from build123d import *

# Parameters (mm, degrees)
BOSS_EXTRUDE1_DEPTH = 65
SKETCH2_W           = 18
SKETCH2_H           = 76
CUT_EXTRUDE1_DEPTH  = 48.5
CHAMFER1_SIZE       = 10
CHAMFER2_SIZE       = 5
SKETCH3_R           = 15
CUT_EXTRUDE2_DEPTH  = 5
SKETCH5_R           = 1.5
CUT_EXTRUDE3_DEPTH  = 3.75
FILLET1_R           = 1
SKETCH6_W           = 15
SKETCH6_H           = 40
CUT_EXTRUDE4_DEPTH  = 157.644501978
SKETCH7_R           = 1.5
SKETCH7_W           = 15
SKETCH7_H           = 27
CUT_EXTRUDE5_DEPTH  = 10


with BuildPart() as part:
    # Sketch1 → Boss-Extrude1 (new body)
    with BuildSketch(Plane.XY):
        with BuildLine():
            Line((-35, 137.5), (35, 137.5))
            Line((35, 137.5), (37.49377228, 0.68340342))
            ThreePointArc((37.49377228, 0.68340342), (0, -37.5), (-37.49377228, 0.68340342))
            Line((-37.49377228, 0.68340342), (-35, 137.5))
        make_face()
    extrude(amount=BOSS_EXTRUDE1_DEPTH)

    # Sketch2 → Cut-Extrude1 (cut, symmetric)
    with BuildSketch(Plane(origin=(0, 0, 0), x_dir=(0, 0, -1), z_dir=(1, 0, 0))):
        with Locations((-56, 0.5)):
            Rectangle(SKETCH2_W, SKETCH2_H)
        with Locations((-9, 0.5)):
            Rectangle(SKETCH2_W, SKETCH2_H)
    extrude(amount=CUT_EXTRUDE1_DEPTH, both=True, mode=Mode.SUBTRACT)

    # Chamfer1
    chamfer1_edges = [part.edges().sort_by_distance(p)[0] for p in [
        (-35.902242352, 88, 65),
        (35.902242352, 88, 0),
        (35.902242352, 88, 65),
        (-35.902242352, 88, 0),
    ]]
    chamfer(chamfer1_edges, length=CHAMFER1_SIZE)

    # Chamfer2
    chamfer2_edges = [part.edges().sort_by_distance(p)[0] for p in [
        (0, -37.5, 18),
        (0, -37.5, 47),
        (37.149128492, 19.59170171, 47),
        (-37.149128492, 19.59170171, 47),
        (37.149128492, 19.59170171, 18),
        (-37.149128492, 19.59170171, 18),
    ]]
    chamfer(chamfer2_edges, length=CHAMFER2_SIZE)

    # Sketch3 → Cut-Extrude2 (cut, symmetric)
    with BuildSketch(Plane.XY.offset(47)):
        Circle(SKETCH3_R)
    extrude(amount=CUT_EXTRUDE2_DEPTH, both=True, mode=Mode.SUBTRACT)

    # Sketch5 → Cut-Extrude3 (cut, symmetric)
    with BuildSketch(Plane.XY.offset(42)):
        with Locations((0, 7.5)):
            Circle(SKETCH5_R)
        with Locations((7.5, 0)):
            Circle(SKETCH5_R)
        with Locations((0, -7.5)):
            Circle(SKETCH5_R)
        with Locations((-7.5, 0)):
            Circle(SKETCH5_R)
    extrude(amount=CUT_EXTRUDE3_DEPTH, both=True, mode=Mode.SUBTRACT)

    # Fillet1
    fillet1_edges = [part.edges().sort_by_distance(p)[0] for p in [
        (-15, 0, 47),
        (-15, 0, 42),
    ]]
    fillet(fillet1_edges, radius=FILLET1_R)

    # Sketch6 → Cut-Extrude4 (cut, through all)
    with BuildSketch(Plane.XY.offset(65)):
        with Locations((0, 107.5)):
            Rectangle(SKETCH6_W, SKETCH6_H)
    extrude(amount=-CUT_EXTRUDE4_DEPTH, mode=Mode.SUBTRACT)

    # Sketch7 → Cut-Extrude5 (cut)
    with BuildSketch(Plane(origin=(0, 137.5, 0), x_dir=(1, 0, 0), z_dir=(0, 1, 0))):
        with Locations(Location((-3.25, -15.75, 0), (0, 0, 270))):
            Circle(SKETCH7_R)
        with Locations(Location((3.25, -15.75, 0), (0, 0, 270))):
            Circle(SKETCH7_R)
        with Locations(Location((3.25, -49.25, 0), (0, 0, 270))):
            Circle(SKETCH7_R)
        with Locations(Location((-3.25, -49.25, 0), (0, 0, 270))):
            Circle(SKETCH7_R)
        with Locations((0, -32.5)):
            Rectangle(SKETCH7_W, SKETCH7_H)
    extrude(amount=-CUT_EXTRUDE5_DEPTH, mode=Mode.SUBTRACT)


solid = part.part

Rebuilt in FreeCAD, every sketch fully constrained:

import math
import FreeCAD as App
import Part
import Sketcher


def edges_at(feature, points):
    """Names of the edges that pass closest to the given points."""
    edges = feature.Shape.Edges
    near = lambda p: min(range(len(edges)), key=lambda i: edges[i].distToShape(Part.Vertex(*p))[0])
    return sorted({f"Edge{near(p) + 1}" for p in points})


def add_polygon(sketch, points):
    """Adds a closed chain of lines whose ends are joined by coincident constraints."""
    first, n = sketch.GeometryCount, len(points)
    for a, b in zip(points, points[1:] + points[:1]):
        sketch.addGeometry(Part.LineSegment(App.Vector(*a, 0), App.Vector(*b, 0)), False)
    for i in range(n):
        sketch.addConstraint(Sketcher.Constraint("Coincident", first + i, 2, first + (i + 1) % n, 1))

doc = App.newDocument("Part")
params = doc.addObject("Spreadsheet::Sheet", "Params")
for row, (alias, value) in enumerate([
    ("sketch1_radius", "37.5 mm"),
    ("sketch1_width", "70 mm"),
    ("pad1_length", "65 mm"),
    ("sketch2_width", "76 mm"),
    ("sketch2_height", "18 mm"),
    ("pocket1_length", "97 mm"),
    ("chamfer_size", "10 mm"),
    ("chamfer2_size", "5 mm"),
    ("sketch3_diameter", "30 mm"),
    ("pocket2_length", "10 mm"),
    ("sketch4_diameter", "3 mm"),
    ("pocket3_length", "7.5 mm"),
    ("fillet_radius", "1 mm"),
    ("sketch5_width", "15 mm"),
    ("sketch5_height", "40 mm"),
    ("sketch6_diameter", "3 mm"),
    ("sketch6_width", "15 mm"),
    ("sketch6_height", "27 mm"),
    ("pocket5_length", "10 mm"),
], start=1):
    params.set(f"A{row}", alias)
    params.set(f"B{row}", "=" + value)
    params.setAlias(f"B{row}", alias)

body = doc.addObject("PartDesign::Body", "Body")

# Sketch on XY plane
sketch1 = body.newObject("Sketcher::SketchObject", "Sketch")
sketch1.AttachmentSupport = (doc.getObject("XY_Plane"), [""])
sketch1.MapMode = "FlatFace"
sketch1.addGeometry([
    Part.LineSegment(App.Vector(35, 138, 0), App.Vector(-35, 138, 0)),
    Part.LineSegment(App.Vector(-35, 138, 0), App.Vector(-37, 1, 0)),
    Part.ArcOfCircle(Part.Circle(App.Vector(0, 0, 0), App.Vector(0, 0, 1), 38), math.radians(179), math.radians(361)),
    Part.LineSegment(App.Vector(37, 1, 0), App.Vector(35, 138, 0)),
], False)
sketch1.addConstraint([
    Sketcher.Constraint("Coincident", 0, 2, 1, 1),
    Sketcher.Constraint("Tangent", 1, 2, 2, 1),
    Sketcher.Constraint("Tangent", 2, 2, 3, 1),
    Sketcher.Constraint("Coincident", 3, 2, 0, 1),
    Sketcher.Constraint("Horizontal", 0),
    Sketcher.Constraint("Coincident", 2, 3, -1, 1),
    Sketcher.Constraint("Horizontal", 1, 2, 2, 2),
    Sketcher.Constraint("Radius", 2, 37.5),
    Sketcher.Constraint("DistanceX", 0, 2, 0, 1, 70.0),
    Sketcher.Constraint("DistanceY", -1, 1, 0, 2, 137.5),
])
sketch1.setExpression("Constraints[7]", "Params.sketch1_radius")
sketch1.setExpression("Constraints[8]", "Params.sketch1_width")
pad1 = body.newObject("PartDesign::Pad", "Pad")
pad1.Profile = sketch1
pad1.setExpression("Length", "Params.pad1_length")

# Sketch on YZ plane
sketch2 = body.newObject("Sketcher::SketchObject", "Sketch001")
sketch2.AttachmentSupport = (doc.getObject("YZ_Plane"), [""])
sketch2.MapMode = "FlatFace"
add_polygon(sketch2, [(38, 65), (-38, 65), (-38, 47), (38, 47)])  # lines 0-3
add_polygon(sketch2, [(38, 18), (-38, 18), (-38, 0), (38, 0)])  # lines 4-7
sketch2.addConstraint([
    Sketcher.Constraint("Horizontal", 0),
    Sketcher.Constraint("Vertical", 1),
    Sketcher.Constraint("Horizontal", 2),
    Sketcher.Constraint("Vertical", 3),
    Sketcher.Constraint("Horizontal", 4),
    Sketcher.Constraint("Vertical", 5),
    Sketcher.Constraint("Horizontal", 6),
    Sketcher.Constraint("Vertical", 7),
    Sketcher.Constraint("PointOnObject", 5, 2, -1),
    Sketcher.Constraint("Vertical", 1, 2, 4, 2),
    Sketcher.Constraint("Vertical", 3, 2, 6, 2),
    Sketcher.Constraint("Equal", 3, 5),
    Sketcher.Constraint("DistanceX", 0, 2, 0, 1, 76.0),
    Sketcher.Constraint("DistanceY", 1, 2, 1, 1, 18.0),
    Sketcher.Constraint("DistanceY", -1, 1, 0, 2, 65.0),
    Sketcher.Constraint("DistanceX", 0, 2, -1, 1, 37.5),
])
sketch2.setExpression("Constraints[20]", "Params.sketch2_width")
sketch2.setExpression("Constraints[21]", "Params.sketch2_height")
pocket1 = body.newObject("PartDesign::Pocket", "Pocket")
pocket1.Profile = sketch2
pocket1.setExpression("Length", "Params.pocket1_length")
pocket1.Midplane = True
doc.recompute()

chamfer = body.newObject("PartDesign::Chamfer", "Chamfer")
chamfer.Base = (pocket1, edges_at(pocket1, [
    (-35.902, 88, 65),
    (35.902, 88, 0),
    (35.902, 88, 65),
    (-35.902, 88, 0),
]))
chamfer.setExpression("Size", "Params.chamfer_size")
doc.recompute()

chamfer2 = body.newObject("PartDesign::Chamfer", "Chamfer001")
chamfer2.Base = (chamfer, edges_at(chamfer, [
    (0, -37.5, 18),
    (0, -37.5, 47),
    (37.149, 19.592, 47),
    (-37.149, 19.592, 47),
    (37.149, 19.592, 18),
    (-37.149, 19.592, 18),
]))
chamfer2.setExpression("Size", "Params.chamfer2_size")

# Sketch on XY plane
sketch3 = body.newObject("Sketcher::SketchObject", "Sketch002")
sketch3.AttachmentSupport = (doc.getObject("XY_Plane"), [""])
sketch3.MapMode = "FlatFace"
sketch3.AttachmentOffset = App.Placement(App.Vector(0, 0, 47), App.Rotation())
sketch3.addGeometry(Part.Circle(App.Vector(0, 0, 0), App.Vector(0, 0, 1), 15), False)
sketch3.addConstraint([
    Sketcher.Constraint("Coincident", 0, 3, -1, 1),
    Sketcher.Constraint("Diameter", 0, 30.0),
])
sketch3.setExpression("Constraints[1]", "Params.sketch3_diameter")
pocket2 = body.newObject("PartDesign::Pocket", "Pocket001")
pocket2.Profile = sketch3
pocket2.setExpression("Length", "Params.pocket2_length")
pocket2.Midplane = True

# Sketch on XY plane
sketch4 = body.newObject("Sketcher::SketchObject", "Sketch003")
sketch4.AttachmentSupport = (doc.getObject("XY_Plane"), [""])
sketch4.MapMode = "FlatFace"
sketch4.AttachmentOffset = App.Placement(App.Vector(0, 0, 42), App.Rotation())
sketch4.addGeometry([
    Part.Circle(App.Vector(0, 7.5, 0), App.Vector(0, 0, 1), 1.5),
    Part.Circle(App.Vector(7.5, 0, 0), App.Vector(0, 0, 1), 1.5),
    Part.Circle(App.Vector(0, -7.5, 0), App.Vector(0, 0, 1), 1.5),
    Part.Circle(App.Vector(-7.5, 0, 0), App.Vector(0, 0, 1), 1.5),
], False)
sketch4.addConstraint([
    Sketcher.Constraint("Equal", 0, 1),
    Sketcher.Constraint("Equal", 1, 2),
    Sketcher.Constraint("Equal", 2, 3),
    Sketcher.Constraint("Symmetric", 0, 3, 2, 3, -1, 1),
    Sketcher.Constraint("Symmetric", 1, 3, 3, 3, -1, 1),
    Sketcher.Constraint("PointOnObject", 0, 3, -2),
    Sketcher.Constraint("PointOnObject", 1, 3, -1),
    Sketcher.Constraint("Diameter", 0, 3.0),
    Sketcher.Constraint("DistanceY", 2, 3, 0, 3, 15.0),
    Sketcher.Constraint("DistanceX", 3, 3, 1, 3, 15.0),
])
sketch4.setExpression("Constraints[7]", "Params.sketch4_diameter")
pocket3 = body.newObject("PartDesign::Pocket", "Pocket002")
pocket3.Profile = sketch4
pocket3.setExpression("Length", "Params.pocket3_length")
pocket3.Midplane = True
doc.recompute()

fillet = body.newObject("PartDesign::Fillet", "Fillet")
fillet.Base = (pocket3, edges_at(pocket3, [(-15, 0, 47), (-15, 0, 42)]))
fillet.setExpression("Radius", "Params.fillet_radius")

# Sketch on XY plane
sketch5 = body.newObject("Sketcher::SketchObject", "Sketch004")
sketch5.AttachmentSupport = (doc.getObject("XY_Plane"), [""])
sketch5.MapMode = "FlatFace"
sketch5.AttachmentOffset = App.Placement(App.Vector(0, 0, 65), App.Rotation())
add_polygon(sketch5, [(-8, 128), (-8, 88), (8, 88), (8, 128)])  # lines 0-3
sketch5.addConstraint([
    Sketcher.Constraint("Vertical", 0),
    Sketcher.Constraint("Horizontal", 1),
    Sketcher.Constraint("Vertical", 2),
    Sketcher.Constraint("Horizontal", 3),
    Sketcher.Constraint("DistanceX", 1, 1, 1, 2, 15.0),
    Sketcher.Constraint("DistanceY", 0, 2, 0, 1, 40.0),
    Sketcher.Constraint("DistanceX", 0, 2, -1, 1, 7.5),
    Sketcher.Constraint("DistanceY", -1, 1, 0, 2, 87.5),
])
sketch5.setExpression("Constraints[8]", "Params.sketch5_width")
sketch5.setExpression("Constraints[9]", "Params.sketch5_height")
pocket4 = body.newObject("PartDesign::Pocket", "Pocket003")
pocket4.Profile = sketch5
pocket4.Type = "ThroughAll"

# Sketch on XZ plane
sketch6 = body.newObject("Sketcher::SketchObject", "Sketch005")
sketch6.AttachmentSupport = (doc.getObject("XZ_Plane"), [""])
sketch6.MapMode = "FlatFace"
sketch6.AttachmentOffset = App.Placement(App.Vector(0, 0, -137.5), App.Rotation())
sketch6.addGeometry(Part.Circle(App.Vector(-3.2, 15.8, 0), App.Vector(0, 0, 1), 1.5), False)  # 0
sketch6.addGeometry(Part.Circle(App.Vector(3.2, 15.8, 0), App.Vector(0, 0, 1), 1.5), False)  # 1
sketch6.addGeometry(Part.Circle(App.Vector(3.2, 49.2, 0), App.Vector(0, 0, 1), 1.5), False)  # 2
sketch6.addGeometry(Part.Circle(App.Vector(-3.2, 49.2, 0), App.Vector(0, 0, 1), 1.5), False)  # 3
add_polygon(sketch6, [(-7.5, 19), (-7.5, 46), (7.5, 46), (7.5, 19)])  # lines 4-7
sketch6.addConstraint([
    Sketcher.Constraint("Vertical", 4),
    Sketcher.Constraint("Horizontal", 5),
    Sketcher.Constraint("Vertical", 6),
    Sketcher.Constraint("Horizontal", 7),
    Sketcher.Constraint("Equal", 0, 1),
    Sketcher.Constraint("Equal", 1, 2),
    Sketcher.Constraint("Equal", 2, 3),
    Sketcher.Constraint("Symmetric", 0, 3, 1, 3, -2),
    Sketcher.Constraint("Symmetric", 2, 3, 3, 3, -2),
    Sketcher.Constraint("Vertical", 1, 3, 2, 3),
    Sketcher.Constraint("Diameter", 0, 3.0),
    Sketcher.Constraint("DistanceX", 5, 1, 5, 2, 15.0),
    Sketcher.Constraint("DistanceY", 4, 1, 4, 2, 27.0),
    Sketcher.Constraint("DistanceY", -1, 1, 4, 2, 46.0),
    Sketcher.Constraint("DistanceX", 4, 2, -1, 1, 7.5),
    Sketcher.Constraint("DistanceX", 0, 3, 1, 3, 6.5),
    Sketcher.Constraint("DistanceY", 1, 3, 2, 3, 33.5),
    Sketcher.Constraint("DistanceY", -1, 1, 0, 3, 15.75),
])
sketch6.setExpression("Constraints[14]", "Params.sketch6_diameter")
sketch6.setExpression("Constraints[15]", "Params.sketch6_width")
sketch6.setExpression("Constraints[16]", "Params.sketch6_height")
pocket5 = body.newObject("PartDesign::Pocket", "Pocket004")
pocket5.Profile = sketch6
pocket5.setExpression("Length", "Params.pocket5_length")
pocket5.Reversed = True

doc.recompute()
